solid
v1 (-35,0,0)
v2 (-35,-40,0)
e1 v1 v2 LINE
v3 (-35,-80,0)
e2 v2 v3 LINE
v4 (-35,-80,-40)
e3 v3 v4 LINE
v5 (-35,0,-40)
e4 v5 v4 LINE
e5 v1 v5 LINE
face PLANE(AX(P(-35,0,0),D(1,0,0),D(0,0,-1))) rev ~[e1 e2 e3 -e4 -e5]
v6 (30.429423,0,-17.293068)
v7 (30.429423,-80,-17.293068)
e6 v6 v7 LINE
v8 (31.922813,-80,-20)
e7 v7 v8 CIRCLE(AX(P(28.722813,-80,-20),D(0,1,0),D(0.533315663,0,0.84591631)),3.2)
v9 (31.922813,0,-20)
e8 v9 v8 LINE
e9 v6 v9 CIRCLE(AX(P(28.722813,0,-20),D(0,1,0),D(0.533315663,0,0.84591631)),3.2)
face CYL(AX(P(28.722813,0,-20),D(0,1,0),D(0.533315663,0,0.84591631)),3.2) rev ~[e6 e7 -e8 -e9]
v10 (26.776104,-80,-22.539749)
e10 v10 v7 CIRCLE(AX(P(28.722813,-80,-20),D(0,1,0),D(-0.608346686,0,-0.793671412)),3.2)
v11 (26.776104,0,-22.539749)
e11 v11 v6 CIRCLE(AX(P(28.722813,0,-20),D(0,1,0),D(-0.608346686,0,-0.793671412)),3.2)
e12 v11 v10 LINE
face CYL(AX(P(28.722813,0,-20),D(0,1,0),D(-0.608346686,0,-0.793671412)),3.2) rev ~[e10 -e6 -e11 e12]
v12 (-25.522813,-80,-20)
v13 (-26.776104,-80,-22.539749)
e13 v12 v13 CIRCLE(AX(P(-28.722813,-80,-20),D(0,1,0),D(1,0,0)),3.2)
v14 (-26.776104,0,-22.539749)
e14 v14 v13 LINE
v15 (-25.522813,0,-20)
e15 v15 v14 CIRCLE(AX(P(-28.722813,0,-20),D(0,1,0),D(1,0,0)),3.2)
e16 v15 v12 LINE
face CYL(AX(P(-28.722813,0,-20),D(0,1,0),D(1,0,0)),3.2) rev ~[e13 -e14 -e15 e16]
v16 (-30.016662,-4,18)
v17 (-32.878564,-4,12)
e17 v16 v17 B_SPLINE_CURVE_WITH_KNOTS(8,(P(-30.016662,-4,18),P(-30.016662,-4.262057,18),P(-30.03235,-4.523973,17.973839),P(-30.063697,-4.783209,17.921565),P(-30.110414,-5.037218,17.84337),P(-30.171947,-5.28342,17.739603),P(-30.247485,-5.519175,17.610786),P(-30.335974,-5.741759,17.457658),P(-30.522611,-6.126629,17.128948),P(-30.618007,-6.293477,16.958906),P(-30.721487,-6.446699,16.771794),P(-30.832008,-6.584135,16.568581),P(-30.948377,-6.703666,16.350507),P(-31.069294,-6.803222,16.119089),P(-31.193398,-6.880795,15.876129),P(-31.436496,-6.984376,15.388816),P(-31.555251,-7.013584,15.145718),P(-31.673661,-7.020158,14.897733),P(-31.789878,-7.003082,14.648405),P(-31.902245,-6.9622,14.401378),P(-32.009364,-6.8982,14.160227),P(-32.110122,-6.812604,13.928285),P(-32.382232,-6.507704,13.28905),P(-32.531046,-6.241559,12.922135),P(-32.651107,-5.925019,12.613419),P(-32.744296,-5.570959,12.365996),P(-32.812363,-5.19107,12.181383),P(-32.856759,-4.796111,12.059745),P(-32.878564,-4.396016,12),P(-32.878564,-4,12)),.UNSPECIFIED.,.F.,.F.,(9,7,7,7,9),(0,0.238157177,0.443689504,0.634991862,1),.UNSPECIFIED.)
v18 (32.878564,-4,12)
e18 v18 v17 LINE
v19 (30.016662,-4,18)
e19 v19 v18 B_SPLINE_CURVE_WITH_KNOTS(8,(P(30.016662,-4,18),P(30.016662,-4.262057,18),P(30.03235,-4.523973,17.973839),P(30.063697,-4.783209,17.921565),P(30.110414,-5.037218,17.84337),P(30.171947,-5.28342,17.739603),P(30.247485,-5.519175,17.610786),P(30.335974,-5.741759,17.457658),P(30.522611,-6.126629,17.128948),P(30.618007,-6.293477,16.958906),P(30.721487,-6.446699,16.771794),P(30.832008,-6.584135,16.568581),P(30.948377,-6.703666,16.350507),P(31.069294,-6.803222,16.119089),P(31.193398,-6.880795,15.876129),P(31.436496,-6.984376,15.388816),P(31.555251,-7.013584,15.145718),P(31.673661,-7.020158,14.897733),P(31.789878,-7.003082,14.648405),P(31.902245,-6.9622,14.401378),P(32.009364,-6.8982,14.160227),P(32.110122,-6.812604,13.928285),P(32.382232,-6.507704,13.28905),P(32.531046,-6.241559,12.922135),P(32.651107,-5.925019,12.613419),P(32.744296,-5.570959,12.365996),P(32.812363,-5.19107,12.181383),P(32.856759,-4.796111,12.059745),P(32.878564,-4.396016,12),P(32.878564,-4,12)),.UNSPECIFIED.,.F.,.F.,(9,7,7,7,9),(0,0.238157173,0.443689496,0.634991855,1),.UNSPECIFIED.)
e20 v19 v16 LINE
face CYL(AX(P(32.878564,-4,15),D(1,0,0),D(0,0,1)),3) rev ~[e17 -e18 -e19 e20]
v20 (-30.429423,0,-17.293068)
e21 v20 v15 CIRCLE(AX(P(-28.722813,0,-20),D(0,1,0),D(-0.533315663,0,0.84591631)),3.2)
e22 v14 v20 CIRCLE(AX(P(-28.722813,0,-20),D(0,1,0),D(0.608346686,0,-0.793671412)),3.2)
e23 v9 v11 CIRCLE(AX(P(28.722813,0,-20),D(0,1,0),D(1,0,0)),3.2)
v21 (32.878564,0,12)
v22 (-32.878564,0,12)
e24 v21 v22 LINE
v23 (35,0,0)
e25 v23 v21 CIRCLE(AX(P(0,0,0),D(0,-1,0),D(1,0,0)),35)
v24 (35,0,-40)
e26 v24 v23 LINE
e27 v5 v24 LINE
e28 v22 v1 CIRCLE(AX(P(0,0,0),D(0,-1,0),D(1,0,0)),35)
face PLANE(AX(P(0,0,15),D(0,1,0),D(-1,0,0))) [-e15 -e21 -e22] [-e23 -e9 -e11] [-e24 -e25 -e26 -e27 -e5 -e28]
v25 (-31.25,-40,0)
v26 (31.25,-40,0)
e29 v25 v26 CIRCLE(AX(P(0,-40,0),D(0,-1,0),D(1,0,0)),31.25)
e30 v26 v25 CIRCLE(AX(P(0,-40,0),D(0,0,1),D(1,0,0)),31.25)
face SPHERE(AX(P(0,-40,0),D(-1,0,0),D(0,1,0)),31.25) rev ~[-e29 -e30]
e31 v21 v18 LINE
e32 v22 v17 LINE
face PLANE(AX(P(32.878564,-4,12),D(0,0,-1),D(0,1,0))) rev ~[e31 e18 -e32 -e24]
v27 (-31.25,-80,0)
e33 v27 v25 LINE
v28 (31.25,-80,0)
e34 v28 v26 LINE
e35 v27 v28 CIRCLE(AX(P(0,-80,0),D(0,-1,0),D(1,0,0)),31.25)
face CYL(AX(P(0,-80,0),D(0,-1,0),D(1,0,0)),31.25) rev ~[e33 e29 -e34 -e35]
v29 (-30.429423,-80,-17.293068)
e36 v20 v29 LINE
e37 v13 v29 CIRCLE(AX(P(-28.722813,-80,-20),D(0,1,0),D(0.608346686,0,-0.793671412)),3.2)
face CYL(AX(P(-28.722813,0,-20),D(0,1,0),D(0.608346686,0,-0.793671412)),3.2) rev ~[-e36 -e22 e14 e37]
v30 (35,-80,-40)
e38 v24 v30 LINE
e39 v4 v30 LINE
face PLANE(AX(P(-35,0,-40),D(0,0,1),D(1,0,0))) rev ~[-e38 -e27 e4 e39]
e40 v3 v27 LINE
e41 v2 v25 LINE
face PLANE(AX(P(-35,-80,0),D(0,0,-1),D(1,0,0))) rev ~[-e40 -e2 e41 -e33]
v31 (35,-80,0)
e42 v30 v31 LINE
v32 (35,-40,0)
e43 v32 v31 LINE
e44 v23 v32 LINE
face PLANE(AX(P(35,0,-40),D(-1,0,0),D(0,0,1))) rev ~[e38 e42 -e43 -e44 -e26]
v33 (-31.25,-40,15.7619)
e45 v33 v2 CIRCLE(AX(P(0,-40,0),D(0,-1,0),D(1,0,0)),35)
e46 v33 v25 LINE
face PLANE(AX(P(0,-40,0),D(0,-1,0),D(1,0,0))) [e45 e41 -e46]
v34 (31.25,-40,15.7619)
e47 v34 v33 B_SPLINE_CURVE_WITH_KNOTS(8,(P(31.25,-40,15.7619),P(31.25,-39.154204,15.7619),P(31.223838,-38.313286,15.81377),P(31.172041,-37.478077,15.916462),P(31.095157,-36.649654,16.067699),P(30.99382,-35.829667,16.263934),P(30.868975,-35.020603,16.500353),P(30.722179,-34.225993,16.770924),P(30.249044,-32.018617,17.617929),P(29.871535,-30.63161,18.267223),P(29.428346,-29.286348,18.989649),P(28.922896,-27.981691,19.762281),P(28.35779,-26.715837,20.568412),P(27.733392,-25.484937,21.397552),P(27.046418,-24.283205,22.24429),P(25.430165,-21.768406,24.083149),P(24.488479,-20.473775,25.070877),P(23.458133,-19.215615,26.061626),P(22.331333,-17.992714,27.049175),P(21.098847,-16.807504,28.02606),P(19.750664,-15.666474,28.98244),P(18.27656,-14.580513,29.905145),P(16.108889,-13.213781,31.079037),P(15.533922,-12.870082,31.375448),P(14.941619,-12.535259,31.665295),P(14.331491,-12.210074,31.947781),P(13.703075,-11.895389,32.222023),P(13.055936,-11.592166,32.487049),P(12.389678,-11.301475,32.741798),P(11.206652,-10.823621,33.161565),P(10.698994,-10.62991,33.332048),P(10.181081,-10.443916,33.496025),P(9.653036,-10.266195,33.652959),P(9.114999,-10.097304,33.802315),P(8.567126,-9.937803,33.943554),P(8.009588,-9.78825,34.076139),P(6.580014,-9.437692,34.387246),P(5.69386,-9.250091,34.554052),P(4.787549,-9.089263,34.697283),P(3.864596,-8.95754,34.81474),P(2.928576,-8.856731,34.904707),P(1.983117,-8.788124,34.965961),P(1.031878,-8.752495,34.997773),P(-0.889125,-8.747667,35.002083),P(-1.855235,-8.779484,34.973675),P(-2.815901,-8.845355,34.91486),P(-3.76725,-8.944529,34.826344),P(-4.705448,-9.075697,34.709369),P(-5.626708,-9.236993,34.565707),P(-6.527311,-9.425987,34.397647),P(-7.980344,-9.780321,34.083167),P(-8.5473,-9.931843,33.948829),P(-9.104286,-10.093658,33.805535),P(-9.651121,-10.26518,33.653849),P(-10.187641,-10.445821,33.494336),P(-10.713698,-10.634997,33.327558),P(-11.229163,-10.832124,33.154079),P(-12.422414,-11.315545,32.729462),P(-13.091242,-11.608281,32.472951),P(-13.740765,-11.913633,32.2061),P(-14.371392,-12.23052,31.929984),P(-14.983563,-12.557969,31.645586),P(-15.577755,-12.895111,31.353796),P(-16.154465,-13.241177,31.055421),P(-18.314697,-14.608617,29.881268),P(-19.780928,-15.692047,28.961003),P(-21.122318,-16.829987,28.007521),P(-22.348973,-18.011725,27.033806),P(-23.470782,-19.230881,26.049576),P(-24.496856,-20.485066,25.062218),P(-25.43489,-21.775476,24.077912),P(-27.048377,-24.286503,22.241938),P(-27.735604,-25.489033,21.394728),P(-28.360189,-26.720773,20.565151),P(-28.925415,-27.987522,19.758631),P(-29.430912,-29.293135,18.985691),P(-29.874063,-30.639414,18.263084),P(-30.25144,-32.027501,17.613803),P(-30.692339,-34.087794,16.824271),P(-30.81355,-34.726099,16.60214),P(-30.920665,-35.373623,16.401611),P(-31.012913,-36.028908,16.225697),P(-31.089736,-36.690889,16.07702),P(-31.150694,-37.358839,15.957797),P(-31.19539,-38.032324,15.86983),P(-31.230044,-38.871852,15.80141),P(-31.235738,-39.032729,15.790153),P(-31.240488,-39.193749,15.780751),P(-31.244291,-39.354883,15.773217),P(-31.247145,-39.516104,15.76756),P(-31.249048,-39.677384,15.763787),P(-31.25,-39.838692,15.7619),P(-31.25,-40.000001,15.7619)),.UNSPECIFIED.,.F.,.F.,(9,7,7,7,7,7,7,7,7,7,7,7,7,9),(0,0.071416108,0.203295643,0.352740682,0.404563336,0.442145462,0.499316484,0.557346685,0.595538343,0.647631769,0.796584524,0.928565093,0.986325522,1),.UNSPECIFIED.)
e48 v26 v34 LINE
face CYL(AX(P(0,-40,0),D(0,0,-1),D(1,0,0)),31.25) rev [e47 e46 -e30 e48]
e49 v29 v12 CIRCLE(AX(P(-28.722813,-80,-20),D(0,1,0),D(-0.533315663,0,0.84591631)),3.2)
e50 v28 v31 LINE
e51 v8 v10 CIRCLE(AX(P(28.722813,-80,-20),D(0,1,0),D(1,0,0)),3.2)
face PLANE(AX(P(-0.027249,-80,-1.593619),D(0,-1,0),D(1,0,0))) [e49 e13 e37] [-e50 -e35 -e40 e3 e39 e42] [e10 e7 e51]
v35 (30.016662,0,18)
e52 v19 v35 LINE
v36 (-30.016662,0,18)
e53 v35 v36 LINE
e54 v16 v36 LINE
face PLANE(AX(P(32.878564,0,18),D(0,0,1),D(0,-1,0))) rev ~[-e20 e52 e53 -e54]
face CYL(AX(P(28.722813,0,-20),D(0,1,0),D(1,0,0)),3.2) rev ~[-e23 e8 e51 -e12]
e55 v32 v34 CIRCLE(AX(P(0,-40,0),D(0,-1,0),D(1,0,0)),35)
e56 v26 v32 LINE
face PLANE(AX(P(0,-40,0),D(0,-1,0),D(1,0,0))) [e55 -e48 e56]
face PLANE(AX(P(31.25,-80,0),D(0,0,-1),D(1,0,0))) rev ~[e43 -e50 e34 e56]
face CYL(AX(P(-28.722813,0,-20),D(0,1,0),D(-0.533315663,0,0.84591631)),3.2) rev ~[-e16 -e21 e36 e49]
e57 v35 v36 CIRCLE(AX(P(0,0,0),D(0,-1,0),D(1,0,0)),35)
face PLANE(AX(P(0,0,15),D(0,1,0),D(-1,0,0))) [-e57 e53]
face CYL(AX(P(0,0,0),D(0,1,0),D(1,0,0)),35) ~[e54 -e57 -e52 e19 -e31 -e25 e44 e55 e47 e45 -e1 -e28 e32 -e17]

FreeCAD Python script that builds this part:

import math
import FreeCAD as App
import Part
import Sketcher
from FreeCAD import Vector
Q = App.Units.Quantity


def add_polygon(sketch, points):
    """Adds a closed chain of lines whose ends are joined by coincident constraints."""
    first, n = sketch.GeometryCount, len(points)
    for a, b in zip(points, points[1:] + points[:1]):
        sketch.addGeometry(Part.LineSegment(App.Vector(*a, 0), App.Vector(*b, 0)), False)
    for i in range(n):
        sketch.addConstraint(Sketcher.Constraint("Coincident", first + i, 2, first + (i + 1) % n, 1))

doc = App.newDocument("Part")
body = doc.addObject("PartDesign::Body", "Body")

# Sketch on XZ plane
sketch1 = doc.addObject("Sketcher::SketchObject", "Sketch")
body.addObject(sketch1)
sketch1.AttachmentSupport = (doc.XZ_Plane, [""])
sketch1.MapMode = "FlatFace"
sketch1.addGeometry([
    Part.ArcOfCircle(Part.Circle(Vector(0, 0, 0), Vector(0, 0, 1), 35), math.radians(0), math.radians(180)),  # 0
    Part.LineSegment(Vector(-35, 0, 0), Vector(-35, -40, 0)),  # 1
    Part.LineSegment(Vector(-35, -40, 0), Vector(35, -40, 0)),  # 2
    Part.LineSegment(Vector(35, -40, 0), Vector(35, 0, 0)),  # 3
    Part.ArcOfCircle(Part.Circle(Vector(-28.722813, -20, 0), Vector(0, 0, 1), 3.2), math.radians(0), math.radians(122.229756)),  # 4
    Part.ArcOfCircle(Part.Circle(Vector(-28.722813, -20, 0), Vector(0, 0, 1), 3.2), math.radians(-52.529947), math.radians(0)),  # 5
    Part.ArcOfCircle(Part.Circle(Vector(-28.722813, -20, 0), Vector(0, 0, 1), 3.2), math.radians(122.229756), math.radians(307.470053)),  # 6
    Part.ArcOfCircle(Part.Circle(Vector(28.722813, -20, 0), Vector(0, 0, 1), 3.2), math.radians(57.770244), math.radians(232.529947)),  # 7
    Part.ArcOfCircle(Part.Circle(Vector(28.722813, -20, 0), Vector(0, 0, 1), 3.2), math.radians(0), math.radians(57.770244)),  # 8
    Part.ArcOfCircle(Part.Circle(Vector(28.722813, -20, 0), Vector(0, 0, 1), 3.2), math.radians(-127.470053), math.radians(0)),  # 9
], False)
sketch1.addConstraint([
    Sketcher.Constraint("Tangent", 0, 2, 1, 1),
    Sketcher.Constraint("Coincident", 1, 2, 2, 1),
    Sketcher.Constraint("Coincident", 2, 2, 3, 1),
    Sketcher.Constraint("Tangent", 3, 2, 0, 1),
    Sketcher.Constraint("Tangent", 4, 1, 5, 2),
    Sketcher.Constraint("Tangent", 5, 1, 6, 2),
    Sketcher.Constraint("Tangent", 6, 1, 4, 2),
    Sketcher.Constraint("Tangent", 7, 1, 8, 2),
    Sketcher.Constraint("Tangent", 8, 1, 9, 2),
    Sketcher.Constraint("Tangent", 9, 1, 7, 2),
    Sketcher.Constraint("Vertical", 1),
    Sketcher.Constraint("Horizontal", 2),
    Sketcher.Constraint("Vertical", 3),
    Sketcher.Constraint("Coincident", 0, 3, -1, 1),
    Sketcher.Constraint("Equal", 6, 7),
    Sketcher.Constraint("Symmetric", 4, 3, 7, 3, -2),
    Sketcher.Constraint("Horizontal", 9, 3, 4, 1),
    Sketcher.Constraint("Horizontal", 6, 1, 7, 1),
    Sketcher.Constraint("Horizontal", 4, 1, 8, 1),
    Sketcher.Constraint("Horizontal", 5, 1, 9, 1),
    Sketcher.Constraint("Radius", 0, Q("35 mm")),
    Sketcher.Constraint("Radius", 4, Q("3.2 mm")),
    Sketcher.Constraint("DistanceY", 1, 2, 1, 1, Q("40 mm")),
    Sketcher.Constraint("DistanceY", 4, 3, -1, 1, Q("20 mm")),
    Sketcher.Constraint("DistanceY", 5, 1, -1, 1, Q("22.539749 mm")),
    Sketcher.Constraint("DistanceX", 6, 1, 4, 3, Q("1.70661 mm")),
    Sketcher.Constraint("DistanceX", 4, 3, -1, 1, Q("28.722813 mm")),
])
pad1 = doc.addObject("PartDesign::Pad", "Pad")
body.addObject(pad1)
pad1.Profile = sketch1
pad1.Length = 80

# Sketch on XZ plane
sketch2 = doc.addObject("Sketcher::SketchObject", "Sketch001")
body.addObject(sketch2)
sketch2.AttachmentSupport = (doc.XZ_Plane, [""])
sketch2.MapMode = "FlatFace"
sketch2.AttachmentOffset = App.Placement(Vector(0, 0, 80), App.Rotation())
sketch2.addGeometry([
    Part.ArcOfCircle(Part.Circle(Vector(0, 0, 0), Vector(0, 0, 1), 31.25), math.radians(180), math.radians(360)),
    Part.LineSegment(Vector(31.25, 0, 0), Vector(35, 0, 0)),
    Part.ArcOfCircle(Part.Circle(Vector(0, 0, 0), Vector(0, 0, 1), 35), math.radians(0), math.radians(180)),
    Part.LineSegment(Vector(-35, 0, 0), Vector(-31.25, 0, 0)),
], False)
sketch2.addConstraint([
    Sketcher.Constraint("Coincident", 0, 2, 1, 1),
    Sketcher.Constraint("Coincident", 1, 2, 2, 1),
    Sketcher.Constraint("Coincident", 2, 2, 3, 1),
    Sketcher.Constraint("Coincident", 3, 2, 0, 1),
    Sketcher.Constraint("Horizontal", 1),
    Sketcher.Constraint("Horizontal", 3),
    Sketcher.Constraint("Coincident", 0, 3, -1, 1),
    Sketcher.Constraint("Coincident", 2, 3, -1, 1),
    Sketcher.Constraint("PointOnObject", 0, 2, -1),
    Sketcher.Constraint("PointOnObject", 2, 2, -1),
    Sketcher.Constraint("Radius", 2, Q("35 mm")),
    Sketcher.Constraint("Radius", 0, Q("31.25 mm")),
])
pocket1 = doc.addObject("PartDesign::Pocket", "Pocket")
body.addObject(pocket1)
pocket1.Profile = sketch2
pocket1.Length = 40

# Sketch on XY plane
sketch3 = doc.addObject("Sketcher::SketchObject", "Sketch002")
body.addObject(sketch3)
sketch3.AttachmentSupport = (doc.XY_Plane, [""])
sketch3.MapMode = "FlatFace"
sketch3.addGeometry(Part.Circle(Vector(0, -40, 0), Vector(0, 0, 1), 31.25), False)
sketch3.addConstraint([
    Sketcher.Constraint("PointOnObject", 0, 3, -2),
    Sketcher.Constraint("Diameter", 0, Q("62.5 mm")),
    Sketcher.Constraint("DistanceY", 0, 3, -1, 1, Q("40 mm")),
])
pocket2 = doc.addObject("PartDesign::Pocket", "Pocket001")
body.addObject(pocket2)
pocket2.Profile = sketch3
pocket2.Length = 50.2
pocket2.Reversed = True

# Sketch on XY plane
sketch4 = doc.addObject("Sketcher::SketchObject", "Sketch003")
body.addObject(sketch4)
sketch4.AttachmentSupport = (doc.XY_Plane, [""])
sketch4.MapMode = "FlatFace"
sketch4.addGeometry([
    Part.LineSegment(Vector(-31.25, -40, 0), Vector(31.25, -40, 0)),
    Part.ArcOfCircle(Part.Circle(Vector(0, -40, 0), Vector(0, 0, 1), 31.25), math.radians(0), math.radians(180)),
], False)
sketch4.addGeometry(Part.LineSegment(Vector(31.25, -40, 0), Vector(-31.25, -40, 0)), True)  # axis
sketch4.addConstraint([
    Sketcher.Constraint("Coincident", 0, 1, 1, 2),
    Sketcher.Constraint("Coincident", 1, 1, 0, 2),
    Sketcher.Constraint("Horizontal", 0),
    Sketcher.Constraint("Horizontal", 2),
    Sketcher.Constraint("Coincident", 2, 1, 1, 1),
    Sketcher.Constraint("PointOnObject", 1, 3, -2),
    Sketcher.Constraint("Horizontal", 1, 3, 0, 1),
    Sketcher.Constraint("Equal", 0, 2),
    Sketcher.Constraint("Radius", 1, Q("31.25 mm")),
    Sketcher.Constraint("DistanceY", 1, 3, -1, 1, Q("40 mm")),
])
groove = doc.addObject("PartDesign::Groove", "Groove")
body.addObject(groove)
groove.Profile = sketch4
groove.ReferenceAxis = (sketch4, ["Axis0"])
groove.Angle = 90

# Sketch on XZ plane
sketch5 = doc.addObject("Sketcher::SketchObject", "Sketch004")
body.addObject(sketch5)
sketch5.AttachmentSupport = (doc.XZ_Plane, [""])
sketch5.MapMode = "FlatFace"
add_polygon(sketch5, [(32.878564, 18), (32.878564, 12), (-32.878564, 12), (-32.878564, 18)])  # lines 0-3
sketch5.addConstraint([
    Sketcher.Constraint("Vertical", 0),
    Sketcher.Constraint("Horizontal", 1),
    Sketcher.Constraint("Vertical", 2),
    Sketcher.Constraint("Horizontal", 3),
    Sketcher.Constraint("DistanceY", 0, 2, 0, 1, Q("6 mm")),
    Sketcher.Constraint("DistanceY", -1, 1, 0, 2, Q("12 mm")),
    Sketcher.Constraint("DistanceX", 1, 2, 1, 1, Q("65.757129 mm")),
    Sketcher.Constraint("DistanceX", -1, 1, 0, 2, Q("32.878564 mm")),
])
pocket3 = doc.addObject("PartDesign::Pocket", "Pocket002")
body.addObject(pocket3)
pocket3.Profile = sketch5
pocket3.Length = 4
pocket3.Reversed = True

# Sketch on XZ plane
sketch6 = doc.addObject("Sketcher::SketchObject", "Sketch005")
body.addObject(sketch6)
sketch6.AttachmentSupport = (doc.XZ_Plane, [""])
sketch6.MapMode = "FlatFace"
add_polygon(sketch6, [(32.878564, 18), (32.878564, 12), (-32.878564, 12), (-32.878564, 18)])  # lines 0-3
sketch6.addConstraint([
    Sketcher.Constraint("Vertical", 0),
    Sketcher.Constraint("Horizontal", 1),
    Sketcher.Constraint("Vertical", 2),
    Sketcher.Constraint("Horizontal", 3),
    Sketcher.Constraint("DistanceY", 0, 2, 0, 1, Q("6 mm")),
    Sketcher.Constraint("DistanceY", -1, 1, 0, 2, Q("12 mm")),
    Sketcher.Constraint("DistanceX", 1, 2, 1, 1, Q("65.757129 mm")),
    Sketcher.Constraint("DistanceX", -1, 1, 0, 2, Q("32.878564 mm")),
])
pad2 = doc.addObject("PartDesign::Pad", "Pad001")
body.addObject(pad2)
pad2.Profile = sketch6
pad2.Length = 4

# Sketch on YZ plane
sketch7 = doc.addObject("Sketcher::SketchObject", "Sketch006")
body.addObject(sketch7)
sketch7.AttachmentSupport = (doc.YZ_Plane, [""])
sketch7.MapMode = "FlatFace"
sketch7.AttachmentOffset = App.Placement(Vector(0, 0, 32.878564), App.Rotation())
sketch7.addGeometry([
    Part.ArcOfCircle(Part.Circle(Vector(-4, 15, 0), Vector(0, 0, 1), 3), math.radians(90), math.radians(270)),
    Part.LineSegment(Vector(-4, 12, 0), Vector(0, 12, 0)),
    Part.LineSegment(Vector(0, 12, 0), Vector(0, 18, 0)),
    Part.LineSegment(Vector(0, 18, 0), Vector(-4, 18, 0)),
], False)
sketch7.addConstraint([
    Sketcher.Constraint("Tangent", 0, 2, 1, 1),
    Sketcher.Constraint("Coincident", 1, 2, 2, 1),
    Sketcher.Constraint("Coincident", 2, 2, 3, 1),
    Sketcher.Constraint("Tangent", 3, 2, 0, 1),
    Sketcher.Constraint("Horizontal", 1),
    Sketcher.Constraint("Vertical", 2),
    Sketcher.Constraint("Horizontal", 3),
    Sketcher.Constraint("PointOnObject", 1, 2, -2),
    Sketcher.Constraint("Radius", 0, Q("3 mm")),
    Sketcher.Constraint("DistanceX", 1, 1, 1, 2, Q("4 mm")),
    Sketcher.Constraint("DistanceY", -1, 1, 0, 3, Q("15 mm")),
])
pocket4 = doc.addObject("PartDesign::Pocket", "Pocket003")
body.addObject(pocket4)
pocket4.Profile = sketch7
pocket4.Type = "ThroughAll"

doc.recompute()
